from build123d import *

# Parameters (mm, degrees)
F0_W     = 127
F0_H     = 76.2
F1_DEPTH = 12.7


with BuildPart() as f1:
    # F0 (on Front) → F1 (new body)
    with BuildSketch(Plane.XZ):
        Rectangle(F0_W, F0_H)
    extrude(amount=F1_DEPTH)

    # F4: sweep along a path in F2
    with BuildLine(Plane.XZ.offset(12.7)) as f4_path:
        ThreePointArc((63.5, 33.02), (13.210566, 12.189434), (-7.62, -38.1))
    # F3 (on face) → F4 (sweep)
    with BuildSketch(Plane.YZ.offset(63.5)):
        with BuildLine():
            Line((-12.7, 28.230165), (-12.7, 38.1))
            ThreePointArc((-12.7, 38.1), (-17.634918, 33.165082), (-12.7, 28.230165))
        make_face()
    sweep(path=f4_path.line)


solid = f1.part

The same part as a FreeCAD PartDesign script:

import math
import FreeCAD as App
import Part
import Sketcher
from FreeCAD import Vector
Q = App.Units.Quantity


def add_polygon(sketch, points):
    """Adds a closed chain of lines whose ends are joined by coincident constraints."""
    first, n = sketch.GeometryCount, len(points)
    for a, b in zip(points, points[1:] + points[:1]):
        sketch.addGeometry(Part.LineSegment(App.Vector(*a, 0), App.Vector(*b, 0)), False)
    for i in range(n):
        sketch.addConstraint(Sketcher.Constraint("Coincident", first + i, 2, first + (i + 1) % n, 1))

doc = App.newDocument("Part")
body = doc.addObject("PartDesign::Body", "Body")

sketch1 = body.newObject("Sketcher::SketchObject", "Sketch")
sketch1.AttachmentSupport = (doc.getObject("XZ_Plane"), [""])
sketch1.MapMode = "FlatFace"
add_polygon(sketch1, [(-63.5, 38.1), (-63.5, -38.1), (63.5, -38.1), (63.5, 38.1)])
sketch1.addConstraint(Sketcher.Constraint("Vertical", 0))
sketch1.addConstraint(Sketcher.Constraint("Horizontal", 1))
sketch1.addConstraint(Sketcher.Constraint("Vertical", 2))
sketch1.addConstraint(Sketcher.Constraint("Horizontal", 3))
sketch1.addConstraint(Sketcher.Constraint("Symmetric", 0, 2, 2, 2, -1, 1))
sketch1.addConstraint(Sketcher.Constraint("DistanceX", 1, 1, 1, 2, Q("5 in")))
sketch1.addConstraint(Sketcher.Constraint("DistanceY", 0, 2, 0, 1, Q("3 in")))
pad1 = body.newObject("PartDesign::Pad", "Pad")
pad1.Profile = sketch1
pad1.Length = Q("0.5 in")

sketch2 = body.newObject("Sketcher::SketchObject", "Sketch001")
sketch2.AttachmentSupport = (doc.getObject("YZ_Plane"), [""])
sketch2.MapMode = "FlatFace"
sketch2.AttachmentOffset = App.Placement(Vector(0, 0, 2.5 * 25.4), App.Rotation())
sketch2.addGeometry(Part.LineSegment(Vector(-12.7, 28.230165, 0), Vector(-12.7, 38.1, 0)), False)
sketch2.addGeometry(Part.ArcOfCircle(Part.Circle(Vector(-12.7, 33.165082, 0), Vector(0, 0, 1), 4.934918), math.radians(89.999994), math.radians(270.000006)), False)
sketch2.addConstraint(Sketcher.Constraint("Coincident", 0, 1, 1, 2))
sketch2.addConstraint(Sketcher.Constraint("Coincident", 1, 1, 0, 2))
sketch2.addConstraint(Sketcher.Constraint("Vertical", 0))
sketch2.addConstraint(Sketcher.Constraint("Vertical", 1, 3, 0, 1))
sketch2.addConstraint(Sketcher.Constraint("DistanceX", 1, 3, -1, 1, Q("0.5 in")))
sketch2.addConstraint(Sketcher.Constraint("DistanceY", -1, 1, 1, 1, Q("1.5 in")))
sketch2.addConstraint(Sketcher.Constraint("Radius", 1, 4.934918))

sketch3 = body.newObject("Sketcher::SketchObject", "Sketch002")
sketch3.AttachmentSupport = (doc.getObject("XZ_Plane"), [""])
sketch3.MapMode = "FlatFace"
sketch3.AttachmentOffset = App.Placement(Vector(0, 0, 0.5 * 25.4), App.Rotation())
sketch3.addGeometry(Part.ArcOfCircle(Part.Circle(Vector(63.500001, -38.100001, 0), Vector(0, 0, 1), 71.120001), math.radians(90.000001), math.radians(179.999999)), False)
sketch3.addConstraint(Sketcher.Constraint("Radius", 0, Q("2.8 in")))
sketch3.addConstraint(Sketcher.Constraint("DistanceX", -1, 1, 0, 3, Q("2.5 in")))
sketch3.addConstraint(Sketcher.Constraint("DistanceY", 0, 3, -1, 1, Q("1.5 in")))
sketch3.addConstraint(Sketcher.Constraint("DistanceX", -1, 1, 0, 1, Q("2.5 in")))
sketch3.addConstraint(Sketcher.Constraint("DistanceY", 0, 2, -1, 1, Q("1.5 in")))
doc.recompute()

additivepipe = body.newObject("PartDesign::AdditivePipe", "AdditivePipe")
additivepipe.Profile = sketch2
additivepipe.Spine = (sketch3, ["Edge1"])

doc.recompute()
